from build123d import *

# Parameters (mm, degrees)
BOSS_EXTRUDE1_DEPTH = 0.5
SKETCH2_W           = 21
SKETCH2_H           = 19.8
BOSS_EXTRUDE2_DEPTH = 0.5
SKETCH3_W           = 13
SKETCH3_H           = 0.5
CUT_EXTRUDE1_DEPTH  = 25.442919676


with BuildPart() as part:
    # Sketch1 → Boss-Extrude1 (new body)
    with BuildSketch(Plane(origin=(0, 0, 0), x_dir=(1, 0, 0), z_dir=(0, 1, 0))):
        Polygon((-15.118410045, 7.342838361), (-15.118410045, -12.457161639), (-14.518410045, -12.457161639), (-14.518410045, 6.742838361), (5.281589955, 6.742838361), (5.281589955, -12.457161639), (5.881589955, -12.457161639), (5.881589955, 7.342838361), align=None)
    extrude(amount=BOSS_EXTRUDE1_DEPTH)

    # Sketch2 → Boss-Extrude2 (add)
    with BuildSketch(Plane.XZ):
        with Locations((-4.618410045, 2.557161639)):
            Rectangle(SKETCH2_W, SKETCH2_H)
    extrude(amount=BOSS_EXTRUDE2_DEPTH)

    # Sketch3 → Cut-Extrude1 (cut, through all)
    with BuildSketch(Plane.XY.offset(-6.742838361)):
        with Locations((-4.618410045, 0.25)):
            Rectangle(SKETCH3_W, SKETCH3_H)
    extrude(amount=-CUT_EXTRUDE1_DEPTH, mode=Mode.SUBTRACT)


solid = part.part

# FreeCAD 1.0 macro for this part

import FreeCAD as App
import Part
import Sketcher
from FreeCAD import Vector


def add_polygon(sketch, points):
    """Adds a closed chain of lines whose ends are joined by coincident constraints."""
    first, n = sketch.GeometryCount, len(points)
    for a, b in zip(points, points[1:] + points[:1]):
        sketch.addGeometry(Part.LineSegment(App.Vector(*a, 0), App.Vector(*b, 0)), False)
    for i in range(n):
        sketch.addConstraint(Sketcher.Constraint("Coincident", first + i, 2, first + (i + 1) % n, 1))

doc = App.newDocument("Part")
body = doc.addObject("PartDesign::Body", "Body")

# Sketch on XZ plane
sketch1 = body.newObject("Sketcher::SketchObject", "Sketch")
sketch1.AttachmentSupport = (doc.getObject("XZ_Plane"), [""])
sketch1.MapMode = "FlatFace"
add_polygon(sketch1, [(-15.1, -7.3), (-15.1, 12.5), (-14.5, 12.5), (-14.5, -6.7), (5.3, -6.7), (5.3, 12.5), (5.9, 12.5), (5.9, -7.3)])  # lines 0-7
sketch1.addConstraint([
    Sketcher.Constraint("Vertical", 0),
    Sketcher.Constraint("Horizontal", 1),
    Sketcher.Constraint("Vertical", 2),
    Sketcher.Constraint("Horizontal", 3),
    Sketcher.Constraint("Vertical", 4),
    Sketcher.Constraint("Horizontal", 5),
    Sketcher.Constraint("Vertical", 6),
    Sketcher.Constraint("Horizontal", 7),
    Sketcher.Constraint("Horizontal", 1, 2, 4, 2),
    Sketcher.Constraint("Equal", 1, 5),
    Sketcher.Constraint("Equal", 3, 0),
    Sketcher.Constraint("DistanceX", 7, 2, 7, 1, 21.0),
    Sketcher.Constraint("DistanceX", 1, 1, 1, 2, 0.6),
    Sketcher.Constraint("DistanceY", 2, 2, 2, 1, 19.2),
    Sketcher.Constraint("DistanceX", 0, 2, -1, 1, 15.11841),
    Sketcher.Constraint("DistanceY", -1, 1, 0, 2, 12.457162),
])
pad1 = body.newObject("PartDesign::Pad", "Pad")
pad1.Profile = sketch1
pad1.Length = 0.5
pad1.Reversed = True

# Sketch on XZ plane
sketch2 = body.newObject("Sketcher::SketchObject", "Sketch001")
sketch2.AttachmentSupport = (doc.getObject("XZ_Plane"), [""])
sketch2.MapMode = "FlatFace"
add_polygon(sketch2, [(-15, 12), (-15, -7), (6, -7), (6, 12)])  # lines 0-3
sketch2.addConstraint([
    Sketcher.Constraint("Vertical", 0),
    Sketcher.Constraint("Horizontal", 1),
    Sketcher.Constraint("Vertical", 2),
    Sketcher.Constraint("Horizontal", 3),
    Sketcher.Constraint("DistanceX", 1, 1, 1, 2, 21.0),
    Sketcher.Constraint("DistanceY", 0, 2, 0, 1, 19.8),
    Sketcher.Constraint("DistanceX", 0, 2, -1, 1, 15.11841),
    Sketcher.Constraint("DistanceY", 0, 2, -1, 1, 7.342838),
])
pad2 = body.newObject("PartDesign::Pad", "Pad001")
pad2.Profile = sketch2
pad2.Length = 0.5

# Sketch on XY plane
sketch3 = body.newObject("Sketcher::SketchObject", "Sketch002")
sketch3.AttachmentSupport = (doc.getObject("XY_Plane"), [""])
sketch3.MapMode = "FlatFace"
sketch3.AttachmentOffset = App.Placement(Vector(0, 0, -6.742838), App.Rotation())
add_polygon(sketch3, [(-11.1, 0.5), (-11.1, 0), (1.9, 0), (1.9, 0.5)])  # lines 0-3
sketch3.addConstraint([
    Sketcher.Constraint("Vertical", 0),
    Sketcher.Constraint("Horizontal", 1),
    Sketcher.Constraint("Vertical", 2),
    Sketcher.Constraint("Horizontal", 3),
    Sketcher.Constraint("PointOnObject", 0, 2, -1),
    Sketcher.Constraint("DistanceX", 1, 1, 1, 2, 13.0),
    Sketcher.Constraint("DistanceY", 0, 2, 0, 1, 0.5),
    Sketcher.Constraint("DistanceX", 0, 2, -1, 1, 11.11841),
])
pocket1 = body.newObject("PartDesign::Pocket", "Pocket")
pocket1.Profile = sketch3
pocket1.Type = "ThroughAll"

doc.recompute()
